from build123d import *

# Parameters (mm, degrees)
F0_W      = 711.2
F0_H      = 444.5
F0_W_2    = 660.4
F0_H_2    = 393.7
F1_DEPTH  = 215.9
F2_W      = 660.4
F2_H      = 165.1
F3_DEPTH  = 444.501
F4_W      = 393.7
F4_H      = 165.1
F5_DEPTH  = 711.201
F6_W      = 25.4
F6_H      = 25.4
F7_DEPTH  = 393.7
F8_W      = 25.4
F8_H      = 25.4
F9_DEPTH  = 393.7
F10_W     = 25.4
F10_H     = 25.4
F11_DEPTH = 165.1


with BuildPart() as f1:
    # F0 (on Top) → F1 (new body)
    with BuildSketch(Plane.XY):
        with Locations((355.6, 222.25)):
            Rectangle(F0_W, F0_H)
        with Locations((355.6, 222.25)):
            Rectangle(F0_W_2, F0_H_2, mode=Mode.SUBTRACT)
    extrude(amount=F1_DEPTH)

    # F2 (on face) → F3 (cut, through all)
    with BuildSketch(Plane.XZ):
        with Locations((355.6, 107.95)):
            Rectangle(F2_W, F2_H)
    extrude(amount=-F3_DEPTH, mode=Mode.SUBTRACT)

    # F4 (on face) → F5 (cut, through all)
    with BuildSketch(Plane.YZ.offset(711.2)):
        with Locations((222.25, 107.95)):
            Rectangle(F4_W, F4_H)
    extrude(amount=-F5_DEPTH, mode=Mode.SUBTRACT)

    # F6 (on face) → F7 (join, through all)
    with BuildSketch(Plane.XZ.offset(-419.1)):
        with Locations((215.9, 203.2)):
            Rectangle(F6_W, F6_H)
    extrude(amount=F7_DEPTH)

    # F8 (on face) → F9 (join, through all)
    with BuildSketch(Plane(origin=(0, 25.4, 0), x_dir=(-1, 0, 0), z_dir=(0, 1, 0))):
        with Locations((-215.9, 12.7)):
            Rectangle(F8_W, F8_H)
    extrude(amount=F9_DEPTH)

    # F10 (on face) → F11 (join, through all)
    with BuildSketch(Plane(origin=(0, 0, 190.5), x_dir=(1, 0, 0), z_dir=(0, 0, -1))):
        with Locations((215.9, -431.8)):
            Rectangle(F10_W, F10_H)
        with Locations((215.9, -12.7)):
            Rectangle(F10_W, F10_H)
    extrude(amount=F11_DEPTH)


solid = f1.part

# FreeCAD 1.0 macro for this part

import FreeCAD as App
import Part
import Sketcher
Q = App.Units.Quantity


def add_polygon(sketch, points):
    """Adds a closed chain of lines whose ends are joined by coincident constraints."""
    first, n = sketch.GeometryCount, len(points)
    for a, b in zip(points, points[1:] + points[:1]):
        sketch.addGeometry(Part.LineSegment(App.Vector(*a, 0), App.Vector(*b, 0)), False)
    for i in range(n):
        sketch.addConstraint(Sketcher.Constraint("Coincident", first + i, 2, first + (i + 1) % n, 1))

doc = App.newDocument("Part")
body = doc.addObject("PartDesign::Body", "Body")

# Sketch on XY plane
sketch1 = doc.addObject("Sketcher::SketchObject", "Sketch")
body.addObject(sketch1)
sketch1.AttachmentSupport = (doc.XY_Plane, [""])
sketch1.MapMode = "FlatFace"
add_polygon(sketch1, [(0, 444), (0, 0), (711, 0), (711, 444)])  # lines 0-3
add_polygon(sketch1, [(686, 25), (25, 25), (25, 419), (686, 419)])  # lines 4-7
sketch1.addConstraint(Sketcher.Constraint("Vertical", 0))
sketch1.addConstraint(Sketcher.Constraint("Horizontal", 1))
sketch1.addConstraint(Sketcher.Constraint("Vertical", 2))
sketch1.addConstraint(Sketcher.Constraint("Horizontal", 3))
sketch1.addConstraint(Sketcher.Constraint("Horizontal", 4))
sketch1.addConstraint(Sketcher.Constraint("Vertical", 5))
sketch1.addConstraint(Sketcher.Constraint("Horizontal", 6))
sketch1.addConstraint(Sketcher.Constraint("Vertical", 7))
sketch1.addConstraint(Sketcher.Constraint("Coincident", 0, 2, -1, 1))
sketch1.addConstraint(Sketcher.Constraint("DistanceX", 1, 1, 1, 2, Q("28 in")))
sketch1.addConstraint(Sketcher.Constraint("DistanceX", 4, 2, 4, 1, Q("26 in")))
sketch1.addConstraint(Sketcher.Constraint("DistanceY", 0, 2, 0, 1, Q("17.5 in")))
sketch1.addConstraint(Sketcher.Constraint("DistanceY", 5, 1, 5, 2, Q("15.5 in")))
sketch1.addConstraint(Sketcher.Constraint("DistanceX", -1, 1, 4, 2, Q("1 in")))
sketch1.addConstraint(Sketcher.Constraint("DistanceY", -1, 1, 4, 2, Q("1 in")))
pad1 = doc.addObject("PartDesign::Pad", "Pad")
body.addObject(pad1)
pad1.Profile = sketch1
pad1.Length = Q("8.5 in")

# Sketch on XZ plane
sketch2 = doc.addObject("Sketcher::SketchObject", "Sketch001")
body.addObject(sketch2)
sketch2.AttachmentSupport = (doc.XZ_Plane, [""])
sketch2.MapMode = "FlatFace"
add_polygon(sketch2, [(25, 190), (25, 25), (686, 25), (686, 190)])  # lines 0-3
sketch2.addConstraint(Sketcher.Constraint("Vertical", 0))
sketch2.addConstraint(Sketcher.Constraint("Horizontal", 1))
sketch2.addConstraint(Sketcher.Constraint("Vertical", 2))
sketch2.addConstraint(Sketcher.Constraint("Horizontal", 3))
sketch2.addConstraint(Sketcher.Constraint("DistanceX", 1, 1, 1, 2, Q("26 in")))
sketch2.addConstraint(Sketcher.Constraint("DistanceY", 0, 2, 0, 1, Q("6.5 in")))
sketch2.addConstraint(Sketcher.Constraint("DistanceX", -1, 1, 0, 2, Q("1 in")))
sketch2.addConstraint(Sketcher.Constraint("DistanceY", -1, 1, 0, 2, Q("1 in")))
pocket1 = doc.addObject("PartDesign::Pocket", "Pocket")
body.addObject(pocket1)
pocket1.Profile = sketch2
pocket1.Type = "ThroughAll"

# Sketch on YZ plane
sketch3 = doc.addObject("Sketcher::SketchObject", "Sketch002")
body.addObject(sketch3)
sketch3.AttachmentSupport = (doc.YZ_Plane, [""])
sketch3.MapMode = "FlatFace"
sketch3.AttachmentOffset = App.Placement(App.Vector(0, 0, 28 * 25.4), App.Rotation())
add_polygon(sketch3, [(25, 190), (25, 25), (419, 25), (419, 190)])  # lines 0-3
sketch3.addConstraint(Sketcher.Constraint("Vertical", 0))
sketch3.addConstraint(Sketcher.Constraint("Horizontal", 1))
sketch3.addConstraint(Sketcher.Constraint("Vertical", 2))
sketch3.addConstraint(Sketcher.Constraint("Horizontal", 3))
sketch3.addConstraint(Sketcher.Constraint("DistanceX", 1, 1, 1, 2, Q("15.5 in")))
sketch3.addConstraint(Sketcher.Constraint("DistanceY", 0, 2, 0, 1, Q("6.5 in")))
sketch3.addConstraint(Sketcher.Constraint("DistanceX", -1, 1, 0, 2, Q("1 in")))
sketch3.addConstraint(Sketcher.Constraint("DistanceY", -1, 1, 0, 2, Q("1 in")))
pocket2 = doc.addObject("PartDesign::Pocket", "Pocket001")
body.addObject(pocket2)
pocket2.Profile = sketch3
pocket2.Type = "ThroughAll"

# Sketch on XZ plane
sketch4 = doc.addObject("Sketcher::SketchObject", "Sketch003")
body.addObject(sketch4)
sketch4.AttachmentSupport = (doc.XZ_Plane, [""])
sketch4.MapMode = "FlatFace"
sketch4.AttachmentOffset = App.Placement(App.Vector(0, 0, -16.5 * 25.4), App.Rotation())
add_polygon(sketch4, [(203, 216), (203, 190), (229, 190), (229, 216)])  # lines 0-3
sketch4.addConstraint(Sketcher.Constraint("Vertical", 0))
sketch4.addConstraint(Sketcher.Constraint("Horizontal", 1))
sketch4.addConstraint(Sketcher.Constraint("Vertical", 2))
sketch4.addConstraint(Sketcher.Constraint("Horizontal", 3))
sketch4.addConstraint(Sketcher.Constraint("Equal", 3, 0))
sketch4.addConstraint(Sketcher.Constraint("DistanceX", 1, 1, 1, 2, Q("1 in")))
sketch4.addConstraint(Sketcher.Constraint("DistanceX", -1, 1, 0, 2, Q("8 in")))
sketch4.addConstraint(Sketcher.Constraint("DistanceY", -1, 1, 0, 2, Q("7.5 in")))
pad2 = doc.addObject("PartDesign::Pad", "Pad001")
body.addObject(pad2)
pad2.Profile = sketch4
pad2.Type = "UpToLast"

# Sketch on XZ plane
sketch5 = doc.addObject("Sketcher::SketchObject", "Sketch004")
body.addObject(sketch5)
sketch5.AttachmentSupport = (doc.XZ_Plane, [""])
sketch5.MapMode = "FlatFace"
sketch5.AttachmentOffset = App.Placement(App.Vector(0, 0, -1 * 25.4), App.Rotation())
add_polygon(sketch5, [(229, 25), (229, 0), (203, 0), (203, 25)])  # lines 0-3
sketch5.addConstraint(Sketcher.Constraint("Vertical", 0))
sketch5.addConstraint(Sketcher.Constraint("Horizontal", 1))
sketch5.addConstraint(Sketcher.Constraint("Vertical", 2))
sketch5.addConstraint(Sketcher.Constraint("Horizontal", 3))
sketch5.addConstraint(Sketcher.Constraint("PointOnObject", 0, 2, -1))
sketch5.addConstraint(Sketcher.Constraint("Equal", 3, 0))
sketch5.addConstraint(Sketcher.Constraint("DistanceX", 1, 2, 1, 1, Q("1 in")))
sketch5.addConstraint(Sketcher.Constraint("DistanceX", -1, 1, 0, 2, Q("9 in")))
pad3 = doc.addObject("PartDesign::Pad", "Pad002")
body.addObject(pad3)
pad3.Profile = sketch5
pad3.Type = "UpToLast"
pad3.Reversed = True

# Sketch on XY plane
sketch6 = doc.addObject("Sketcher::SketchObject", "Sketch005")
body.addObject(sketch6)
sketch6.AttachmentSupport = (doc.XY_Plane, [""])
sketch6.MapMode = "FlatFace"
sketch6.AttachmentOffset = App.Placement(App.Vector(0, 0, 7.5 * 25.4), App.Rotation())
add_polygon(sketch6, [(203, 419), (203, 444), (229, 444), (229, 419)])  # lines 0-3
add_polygon(sketch6, [(203, 0), (203, 25), (229, 25), (229, 0)])  # lines 4-7
sketch6.addConstraint(Sketcher.Constraint("Vertical", 0))
sketch6.addConstraint(Sketcher.Constraint("Horizontal", 1))
sketch6.addConstraint(Sketcher.Constraint("Vertical", 2))
sketch6.addConstraint(Sketcher.Constraint("Horizontal", 3))
sketch6.addConstraint(Sketcher.Constraint("Vertical", 4))
sketch6.addConstraint(Sketcher.Constraint("Horizontal", 5))
sketch6.addConstraint(Sketcher.Constraint("Vertical", 6))
sketch6.addConstraint(Sketcher.Constraint("Horizontal", 7))
sketch6.addConstraint(Sketcher.Constraint("PointOnObject", 6, 2, -1))
sketch6.addConstraint(Sketcher.Constraint("Vertical", 3, 2, 4, 2))
sketch6.addConstraint(Sketcher.Constraint("Vertical", 2, 2, 5, 2))
sketch6.addConstraint(Sketcher.Constraint("Equal", 7, 0))
sketch6.addConstraint(Sketcher.Constraint("Equal", 2, 4))
sketch6.addConstraint(Sketcher.Constraint("DistanceX", 1, 1, 1, 2, Q("1 in")))
sketch6.addConstraint(Sketcher.Constraint("DistanceX", -1, 1, 0, 2, Q("8 in")))
sketch6.addConstraint(Sketcher.Constraint("DistanceY", -1, 1, 0, 2, Q("17.5 in")))
pad4 = doc.addObject("PartDesign::Pad", "Pad003")
body.addObject(pad4)
pad4.Profile = sketch6
pad4.Type = "UpToLast"
pad4.Reversed = True

doc.recompute()
